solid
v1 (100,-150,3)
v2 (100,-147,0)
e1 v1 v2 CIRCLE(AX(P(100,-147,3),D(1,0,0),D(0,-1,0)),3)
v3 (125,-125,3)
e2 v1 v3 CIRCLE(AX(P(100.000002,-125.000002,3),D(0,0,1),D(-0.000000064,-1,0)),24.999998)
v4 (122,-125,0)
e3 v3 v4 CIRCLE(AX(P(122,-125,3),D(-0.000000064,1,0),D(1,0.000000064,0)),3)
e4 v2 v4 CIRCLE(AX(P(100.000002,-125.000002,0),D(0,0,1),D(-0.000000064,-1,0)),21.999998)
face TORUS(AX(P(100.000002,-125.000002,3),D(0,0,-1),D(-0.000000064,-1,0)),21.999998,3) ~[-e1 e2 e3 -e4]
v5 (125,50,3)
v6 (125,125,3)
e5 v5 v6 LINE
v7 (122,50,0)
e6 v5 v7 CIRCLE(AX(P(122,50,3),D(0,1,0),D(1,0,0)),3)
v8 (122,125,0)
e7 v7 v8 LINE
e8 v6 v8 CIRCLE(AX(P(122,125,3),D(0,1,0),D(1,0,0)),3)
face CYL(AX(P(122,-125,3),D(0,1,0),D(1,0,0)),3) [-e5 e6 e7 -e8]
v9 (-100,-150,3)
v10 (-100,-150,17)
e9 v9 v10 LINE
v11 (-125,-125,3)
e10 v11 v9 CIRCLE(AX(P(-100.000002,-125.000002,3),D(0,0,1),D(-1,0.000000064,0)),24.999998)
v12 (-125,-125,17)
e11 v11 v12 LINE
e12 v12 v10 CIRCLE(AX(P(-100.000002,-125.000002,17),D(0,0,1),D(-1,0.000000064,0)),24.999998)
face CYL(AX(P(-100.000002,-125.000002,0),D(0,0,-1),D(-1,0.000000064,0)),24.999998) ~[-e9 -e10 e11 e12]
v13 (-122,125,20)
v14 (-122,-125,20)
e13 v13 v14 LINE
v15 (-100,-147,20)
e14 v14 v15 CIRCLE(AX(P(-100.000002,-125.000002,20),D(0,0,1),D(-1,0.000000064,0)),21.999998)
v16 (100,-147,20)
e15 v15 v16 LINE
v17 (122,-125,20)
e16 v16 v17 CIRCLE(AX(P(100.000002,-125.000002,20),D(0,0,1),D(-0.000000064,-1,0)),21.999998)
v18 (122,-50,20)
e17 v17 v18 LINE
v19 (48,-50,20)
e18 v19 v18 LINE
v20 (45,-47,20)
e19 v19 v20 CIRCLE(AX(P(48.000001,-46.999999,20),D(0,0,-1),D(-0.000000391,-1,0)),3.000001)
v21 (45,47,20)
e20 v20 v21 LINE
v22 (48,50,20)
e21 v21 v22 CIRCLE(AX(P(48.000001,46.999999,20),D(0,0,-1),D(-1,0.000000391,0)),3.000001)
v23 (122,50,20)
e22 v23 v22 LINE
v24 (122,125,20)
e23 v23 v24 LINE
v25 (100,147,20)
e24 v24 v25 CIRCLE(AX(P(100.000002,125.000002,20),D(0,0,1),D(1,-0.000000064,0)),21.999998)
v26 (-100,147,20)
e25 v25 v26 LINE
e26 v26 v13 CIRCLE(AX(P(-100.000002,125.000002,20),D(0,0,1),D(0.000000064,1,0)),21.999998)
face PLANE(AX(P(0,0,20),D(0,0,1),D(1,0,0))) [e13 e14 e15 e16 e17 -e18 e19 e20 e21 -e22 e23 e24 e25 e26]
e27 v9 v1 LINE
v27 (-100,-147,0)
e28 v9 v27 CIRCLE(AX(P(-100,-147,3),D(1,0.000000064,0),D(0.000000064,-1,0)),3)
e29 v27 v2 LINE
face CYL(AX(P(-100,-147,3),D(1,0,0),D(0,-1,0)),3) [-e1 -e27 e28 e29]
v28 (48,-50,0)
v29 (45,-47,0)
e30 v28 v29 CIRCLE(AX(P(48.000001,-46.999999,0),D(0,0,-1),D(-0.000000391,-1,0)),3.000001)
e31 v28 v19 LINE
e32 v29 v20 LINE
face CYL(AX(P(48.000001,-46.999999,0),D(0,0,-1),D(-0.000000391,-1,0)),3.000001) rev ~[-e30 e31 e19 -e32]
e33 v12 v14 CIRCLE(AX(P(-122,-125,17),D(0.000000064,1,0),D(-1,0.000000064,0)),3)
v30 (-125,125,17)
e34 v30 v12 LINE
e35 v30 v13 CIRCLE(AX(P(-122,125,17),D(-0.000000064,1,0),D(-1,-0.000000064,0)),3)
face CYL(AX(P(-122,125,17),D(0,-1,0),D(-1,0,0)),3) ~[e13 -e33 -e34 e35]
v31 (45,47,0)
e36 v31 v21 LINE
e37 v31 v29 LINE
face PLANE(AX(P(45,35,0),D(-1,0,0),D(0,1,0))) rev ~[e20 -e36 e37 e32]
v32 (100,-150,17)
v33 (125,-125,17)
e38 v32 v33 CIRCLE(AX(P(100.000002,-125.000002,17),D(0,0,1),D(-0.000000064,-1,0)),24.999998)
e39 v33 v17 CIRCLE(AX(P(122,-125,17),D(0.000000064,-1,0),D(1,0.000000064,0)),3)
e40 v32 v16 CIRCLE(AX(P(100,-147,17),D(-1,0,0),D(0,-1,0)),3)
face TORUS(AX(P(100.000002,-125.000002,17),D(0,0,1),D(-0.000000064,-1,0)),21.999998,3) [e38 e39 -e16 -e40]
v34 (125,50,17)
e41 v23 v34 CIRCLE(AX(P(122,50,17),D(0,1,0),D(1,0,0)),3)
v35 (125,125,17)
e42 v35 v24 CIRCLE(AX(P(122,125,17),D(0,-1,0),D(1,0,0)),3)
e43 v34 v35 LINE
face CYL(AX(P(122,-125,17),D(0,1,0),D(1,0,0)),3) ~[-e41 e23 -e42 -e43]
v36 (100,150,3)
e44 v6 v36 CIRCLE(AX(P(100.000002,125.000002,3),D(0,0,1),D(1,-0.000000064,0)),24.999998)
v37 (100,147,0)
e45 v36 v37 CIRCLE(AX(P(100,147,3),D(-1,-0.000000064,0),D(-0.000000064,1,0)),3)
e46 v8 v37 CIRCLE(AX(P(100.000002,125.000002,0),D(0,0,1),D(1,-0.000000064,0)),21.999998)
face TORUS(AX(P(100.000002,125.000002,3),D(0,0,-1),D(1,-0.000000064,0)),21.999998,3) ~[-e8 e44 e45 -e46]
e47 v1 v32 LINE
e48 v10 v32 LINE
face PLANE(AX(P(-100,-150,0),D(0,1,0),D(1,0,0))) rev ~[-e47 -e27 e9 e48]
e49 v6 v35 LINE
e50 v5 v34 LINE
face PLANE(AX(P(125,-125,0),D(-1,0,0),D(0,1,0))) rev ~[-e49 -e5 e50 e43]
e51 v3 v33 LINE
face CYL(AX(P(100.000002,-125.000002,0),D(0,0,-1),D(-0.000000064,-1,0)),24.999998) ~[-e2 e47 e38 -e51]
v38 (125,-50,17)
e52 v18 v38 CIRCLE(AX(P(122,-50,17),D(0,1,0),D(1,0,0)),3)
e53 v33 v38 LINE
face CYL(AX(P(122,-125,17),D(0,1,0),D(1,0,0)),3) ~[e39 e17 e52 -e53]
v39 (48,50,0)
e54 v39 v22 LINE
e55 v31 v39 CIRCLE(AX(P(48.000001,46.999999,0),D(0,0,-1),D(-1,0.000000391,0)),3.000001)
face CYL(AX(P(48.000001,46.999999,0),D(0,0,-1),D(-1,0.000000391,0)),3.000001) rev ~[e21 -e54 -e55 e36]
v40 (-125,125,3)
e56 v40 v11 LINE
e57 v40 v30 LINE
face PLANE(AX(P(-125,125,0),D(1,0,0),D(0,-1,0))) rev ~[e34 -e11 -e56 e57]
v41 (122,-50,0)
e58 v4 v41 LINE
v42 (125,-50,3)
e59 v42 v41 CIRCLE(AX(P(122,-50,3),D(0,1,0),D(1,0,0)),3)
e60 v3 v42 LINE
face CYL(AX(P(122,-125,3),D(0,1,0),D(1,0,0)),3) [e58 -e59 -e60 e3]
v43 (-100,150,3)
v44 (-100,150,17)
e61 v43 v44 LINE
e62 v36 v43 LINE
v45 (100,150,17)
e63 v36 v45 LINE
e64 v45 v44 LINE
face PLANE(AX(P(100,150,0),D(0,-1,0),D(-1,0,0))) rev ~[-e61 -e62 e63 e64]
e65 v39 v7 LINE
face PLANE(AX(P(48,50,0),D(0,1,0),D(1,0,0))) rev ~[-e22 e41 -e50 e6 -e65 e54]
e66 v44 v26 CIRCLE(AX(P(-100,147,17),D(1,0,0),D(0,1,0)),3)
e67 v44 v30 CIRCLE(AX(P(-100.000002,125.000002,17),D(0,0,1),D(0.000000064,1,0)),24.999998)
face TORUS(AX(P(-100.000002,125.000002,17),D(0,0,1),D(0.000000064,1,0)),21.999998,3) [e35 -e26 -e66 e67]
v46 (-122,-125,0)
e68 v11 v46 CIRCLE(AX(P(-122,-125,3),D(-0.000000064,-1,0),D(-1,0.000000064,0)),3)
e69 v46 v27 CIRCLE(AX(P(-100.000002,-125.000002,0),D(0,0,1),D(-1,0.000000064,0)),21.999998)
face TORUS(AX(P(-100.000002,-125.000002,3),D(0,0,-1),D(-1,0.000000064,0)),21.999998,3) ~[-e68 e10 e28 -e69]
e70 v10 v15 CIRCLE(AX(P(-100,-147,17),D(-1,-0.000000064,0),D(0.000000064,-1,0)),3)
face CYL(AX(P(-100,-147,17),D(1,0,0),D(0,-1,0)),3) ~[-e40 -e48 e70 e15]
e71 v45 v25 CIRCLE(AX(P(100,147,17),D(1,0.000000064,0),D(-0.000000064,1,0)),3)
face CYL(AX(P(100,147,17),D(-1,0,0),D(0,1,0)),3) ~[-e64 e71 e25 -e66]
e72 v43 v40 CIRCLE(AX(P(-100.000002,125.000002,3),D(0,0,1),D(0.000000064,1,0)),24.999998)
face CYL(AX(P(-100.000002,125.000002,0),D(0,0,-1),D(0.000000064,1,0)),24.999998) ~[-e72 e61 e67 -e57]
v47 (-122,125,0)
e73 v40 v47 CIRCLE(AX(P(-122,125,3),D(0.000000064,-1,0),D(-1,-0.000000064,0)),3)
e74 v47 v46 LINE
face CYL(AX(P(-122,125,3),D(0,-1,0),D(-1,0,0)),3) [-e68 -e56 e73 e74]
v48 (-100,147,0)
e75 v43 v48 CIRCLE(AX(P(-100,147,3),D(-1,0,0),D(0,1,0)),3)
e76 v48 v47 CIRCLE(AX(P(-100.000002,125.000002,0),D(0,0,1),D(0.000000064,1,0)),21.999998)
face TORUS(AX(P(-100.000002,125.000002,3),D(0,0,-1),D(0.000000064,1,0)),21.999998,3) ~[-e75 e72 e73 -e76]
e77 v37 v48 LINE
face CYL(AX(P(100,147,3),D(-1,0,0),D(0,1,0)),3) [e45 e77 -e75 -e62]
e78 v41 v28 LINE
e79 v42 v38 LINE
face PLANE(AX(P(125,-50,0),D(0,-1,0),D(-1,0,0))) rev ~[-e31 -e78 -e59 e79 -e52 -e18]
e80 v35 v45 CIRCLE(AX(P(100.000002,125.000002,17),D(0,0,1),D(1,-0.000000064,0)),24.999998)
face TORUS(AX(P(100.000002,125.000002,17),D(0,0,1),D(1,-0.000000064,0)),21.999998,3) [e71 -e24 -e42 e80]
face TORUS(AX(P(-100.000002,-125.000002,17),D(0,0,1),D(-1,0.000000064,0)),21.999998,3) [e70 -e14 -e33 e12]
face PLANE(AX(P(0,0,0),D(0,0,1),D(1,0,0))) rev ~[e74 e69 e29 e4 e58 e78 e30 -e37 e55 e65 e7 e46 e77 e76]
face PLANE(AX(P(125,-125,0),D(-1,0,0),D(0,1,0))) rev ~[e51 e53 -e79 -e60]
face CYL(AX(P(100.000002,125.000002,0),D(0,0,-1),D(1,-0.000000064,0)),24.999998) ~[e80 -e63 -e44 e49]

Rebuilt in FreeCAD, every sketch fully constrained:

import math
import FreeCAD as App
import Part
import Sketcher
from FreeCAD import Vector


def edges_at(feature, points):
    """Names of the edges that pass closest to the given points."""
    edges = feature.Shape.Edges
    near = lambda p: min(range(len(edges)), key=lambda i: edges[i].distToShape(Part.Vertex(*p))[0])
    return sorted({f"Edge{near(p) + 1}" for p in points})

doc = App.newDocument("Part")
body = doc.addObject("PartDesign::Body", "Body")

sketch1 = body.newObject("Sketcher::SketchObject", "Sketch")
sketch1.AttachmentSupport = (doc.getObject("XY_Plane"), [""])
sketch1.MapMode = "FlatFace"
sketch1.addGeometry([
    Part.LineSegment(Vector(-100, -150, 0), Vector(100, -150, 0)),
    Part.ArcOfCircle(Part.Circle(Vector(100, -125, 0), Vector(0, 0, 1), 25), math.radians(-90), math.radians(0)),
    Part.LineSegment(Vector(125, -125, 0), Vector(125, 125, 0)),
    Part.ArcOfCircle(Part.Circle(Vector(100, 125, 0), Vector(0, 0, 1), 25), math.radians(0), math.radians(90)),
    Part.LineSegment(Vector(100, 150, 0), Vector(-100, 150, 0)),
    Part.ArcOfCircle(Part.Circle(Vector(-100, 125, 0), Vector(0, 0, 1), 25), math.radians(90), math.radians(180)),
    Part.LineSegment(Vector(-125, 125, 0), Vector(-125, -125, 0)),
    Part.ArcOfCircle(Part.Circle(Vector(-100, -125, 0), Vector(0, 0, 1), 25), math.radians(180), math.radians(270)),
], False)
sketch1.addConstraint([
    Sketcher.Constraint("Tangent", 0, 2, 1, 1),
    Sketcher.Constraint("Tangent", 1, 2, 2, 1),
    Sketcher.Constraint("Tangent", 2, 2, 3, 1),
    Sketcher.Constraint("Tangent", 3, 2, 4, 1),
    Sketcher.Constraint("Tangent", 4, 2, 5, 1),
    Sketcher.Constraint("Tangent", 5, 2, 6, 1),
    Sketcher.Constraint("Tangent", 6, 2, 7, 1),
    Sketcher.Constraint("Tangent", 7, 2, 0, 1),
    Sketcher.Constraint("Horizontal", 0),
    Sketcher.Constraint("Vertical", 2),
    Sketcher.Constraint("Horizontal", 4),
    Sketcher.Constraint("Vertical", 6),
    Sketcher.Constraint("Equal", 1, 3),
    Sketcher.Constraint("Equal", 3, 5),
    Sketcher.Constraint("Equal", 5, 7),
    Sketcher.Constraint("Symmetric", 1, 3, 5, 3, -1, 1),
    Sketcher.Constraint("Radius", 1, 24.999998),
    Sketcher.Constraint("DistanceX", 0, 1, 0, 2, 200.0),
    Sketcher.Constraint("DistanceY", 2, 1, 2, 2, 250.0),
])
pad1 = body.newObject("PartDesign::Pad", "Pad")
pad1.Profile = sketch1
pad1.Length = 20
doc.recompute()

fillet = body.newObject("PartDesign::Fillet", "Fillet")
fillet.Base = (pad1, edges_at(pad1, [
    (-117.678, -142.678, 20),
    (0, -150, 20),
    (117.678, -142.678, 20),
    (125, 0, 20),
    (117.678, 142.678, 20),
    (0, 150, 20),
    (-117.678, 142.678, 20),
    (-125, 0, 20),
    (-117.678, -142.678, 0),
    (0, -150, 0),
    (117.678, -142.678, 0),
    (125, 0, 0),
    (117.678, 142.678, 0),
    (0, 150, 0),
    (-117.678, 142.678, 0),
    (-125, 0, 0),
]))
fillet.Radius = 3

sketch2 = body.newObject("Sketcher::SketchObject", "Sketch001")
sketch2.AttachmentSupport = (doc.getObject("XY_Plane"), [""])
sketch2.MapMode = "FlatFace"
sketch2.addGeometry([
    Part.ArcOfCircle(Part.Circle(Vector(48, -47, 0), Vector(0, 0, 1), 3), math.radians(-180), math.radians(-90)),
    Part.LineSegment(Vector(45, -47, 0), Vector(45, -35, 0)),
    Part.ArcOfCircle(Part.Circle(Vector(48, -35, 0), Vector(0, 0, 1), 3), math.radians(90), math.radians(180)),
    Part.LineSegment(Vector(48, -32, 0), Vector(125, -32, 0)),
    Part.LineSegment(Vector(125, -32, 0), Vector(125, -50, 0)),
    Part.LineSegment(Vector(125, -50, 0), Vector(48, -50, 0)),
    Part.LineSegment(Vector(125, 50, 0), Vector(125, 32, 0)),
    Part.LineSegment(Vector(125, 32, 0), Vector(48, 32, 0)),
    Part.ArcOfCircle(Part.Circle(Vector(48, 35, 0), Vector(0, 0, 1), 3), math.radians(-180), math.radians(-90)),
    Part.LineSegment(Vector(45, 35, 0), Vector(45, 47, 0)),
    Part.ArcOfCircle(Part.Circle(Vector(48, 47, 0), Vector(0, 0, 1), 3), math.radians(90), math.radians(180)),
    Part.LineSegment(Vector(48, 50, 0), Vector(125, 50, 0)),
], False)
sketch2.addConstraint([
    Sketcher.Constraint("Tangent", 0, 1, 1, 1),
    Sketcher.Constraint("Tangent", 1, 2, 2, 2),
    Sketcher.Constraint("Tangent", 2, 1, 3, 1),
    Sketcher.Constraint("Coincident", 3, 2, 4, 1),
    Sketcher.Constraint("Coincident", 4, 2, 5, 1),
    Sketcher.Constraint("Tangent", 5, 2, 0, 2),
    Sketcher.Constraint("Coincident", 6, 2, 7, 1),
    Sketcher.Constraint("Tangent", 7, 2, 8, 2),
    Sketcher.Constraint("Tangent", 8, 1, 9, 1),
    Sketcher.Constraint("Tangent", 9, 2, 10, 2),
    Sketcher.Constraint("Tangent", 10, 1, 11, 1),
    Sketcher.Constraint("Coincident", 11, 2, 6, 1),
    Sketcher.Constraint("Vertical", 1),
    Sketcher.Constraint("Horizontal", 3),
    Sketcher.Constraint("Vertical", 4),
    Sketcher.Constraint("Horizontal", 5),
    Sketcher.Constraint("Vertical", 6),
    Sketcher.Constraint("Horizontal", 7),
    Sketcher.Constraint("Vertical", 9),
    Sketcher.Constraint("Horizontal", 11),
    Sketcher.Constraint("Equal", 0, 2),
    Sketcher.Constraint("Equal", 2, 8),
    Sketcher.Constraint("Equal", 8, 10),
    Sketcher.Constraint("Symmetric", 2, 3, 8, 3, -1),
    Sketcher.Constraint("Symmetric", 4, 2, 11, 2, -1),
    Sketcher.Constraint("Radius", 0, 3.000001),
    Sketcher.Constraint("DistanceX", 3, 1, 3, 2, 77.0),
    Sketcher.Constraint("DistanceY", 1, 1, 1, 2, 12.0),
    Sketcher.Constraint("DistanceX", -1, 1, 0, 3, 48.000001),
    Sketcher.Constraint("DistanceY", 0, 3, -1, 1, 46.999999),
])
pocket1 = body.newObject("PartDesign::Pocket", "Pocket")
pocket1.Profile = sketch2
pocket1.Length = 25
pocket1.Reversed = True

sketch3 = body.newObject("Sketcher::SketchObject", "Sketch002")
sketch3.AttachmentSupport = (doc.getObject("XY_Plane"), [""])
sketch3.MapMode = "FlatFace"
sketch3.addGeometry([
    Part.ArcOfCircle(Part.Circle(Vector(48, -35, 0), Vector(0, 0, 1), 3), math.radians(90), math.radians(180)),
    Part.LineSegment(Vector(45, -35, 0), Vector(45, 35, 0)),
    Part.ArcOfCircle(Part.Circle(Vector(48, 35, 0), Vector(0, 0, 1), 3), math.radians(-180), math.radians(-90)),
    Part.LineSegment(Vector(48, 32, 0), Vector(125, 32, 0)),
    Part.LineSegment(Vector(125, 32, 0), Vector(125, -32, 0)),
    Part.LineSegment(Vector(125, -32, 0), Vector(48, -32, 0)),
], False)
sketch3.addConstraint([
    Sketcher.Constraint("Tangent", 0, 2, 1, 1),
    Sketcher.Constraint("Tangent", 1, 2, 2, 1),
    Sketcher.Constraint("Tangent", 2, 2, 3, 1),
    Sketcher.Constraint("Coincident", 3, 2, 4, 1),
    Sketcher.Constraint("Coincident", 4, 2, 5, 1),
    Sketcher.Constraint("Tangent", 5, 2, 0, 1),
    Sketcher.Constraint("Vertical", 1),
    Sketcher.Constraint("Horizontal", 3),
    Sketcher.Constraint("Vertical", 4),
    Sketcher.Constraint("Horizontal", 5),
    Sketcher.Constraint("Equal", 0, 2),
    Sketcher.Constraint("Radius", 0, 3.000001),
    Sketcher.Constraint("DistanceX", 3, 1, 3, 2, 77.0),
    Sketcher.Constraint("DistanceY", 1, 1, 1, 2, 70.0),
    Sketcher.Constraint("DistanceX", -1, 1, 0, 3, 48.000001),
    Sketcher.Constraint("DistanceY", 0, 3, -1, 1, 35.000001),
])
pocket2 = body.newObject("PartDesign::Pocket", "Pocket001")
pocket2.Profile = sketch3
pocket2.Length = 25
pocket2.Reversed = True

doc.recompute()
